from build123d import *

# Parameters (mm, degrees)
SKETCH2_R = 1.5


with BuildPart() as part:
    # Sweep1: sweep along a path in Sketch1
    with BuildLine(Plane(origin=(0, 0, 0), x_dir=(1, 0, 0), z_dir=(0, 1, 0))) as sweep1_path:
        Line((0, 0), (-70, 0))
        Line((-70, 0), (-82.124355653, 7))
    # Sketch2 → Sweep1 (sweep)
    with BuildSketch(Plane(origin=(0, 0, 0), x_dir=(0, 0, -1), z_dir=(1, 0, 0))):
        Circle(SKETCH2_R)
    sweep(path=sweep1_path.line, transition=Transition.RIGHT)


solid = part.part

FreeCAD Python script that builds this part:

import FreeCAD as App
import Part
import Sketcher
from FreeCAD import Vector
Q = App.Units.Quantity

doc = App.newDocument("Part")
body = doc.addObject("PartDesign::Body", "Body")

# Sketch on YZ plane
sketch1 = doc.addObject("Sketcher::SketchObject", "Sketch")
body.addObject(sketch1)
sketch1.AttachmentSupport = (doc.YZ_Plane, [""])
sketch1.MapMode = "FlatFace"
sketch1.addGeometry(Part.Circle(Vector(0, 0, 0), Vector(0, 0, 1), 1.5), False)
sketch1.addConstraint([
    Sketcher.Constraint("Coincident", 0, 3, -1, 1),
    Sketcher.Constraint("Diameter", 0, 3.0),
])

# Sketch on XZ plane
sketch2 = doc.addObject("Sketcher::SketchObject", "Sketch001")
body.addObject(sketch2)
sketch2.AttachmentSupport = (doc.XZ_Plane, [""])
sketch2.MapMode = "FlatFace"
sketch2.addGeometry([
    Part.LineSegment(Vector(0, 0, 0), Vector(-70, 0, 0)),
    Part.LineSegment(Vector(-70, 0, 0), Vector(-82, -7, 0)),
], False)
sketch2.addConstraint([
    Sketcher.Constraint("Coincident", 0, 2, 1, 1),
    Sketcher.Constraint("Horizontal", 0),
    Sketcher.Constraint("Coincident", 0, 1, -1, 1),
    Sketcher.Constraint("DistanceX", 0, 2, 0, 1, 70.0),
    Sketcher.Constraint("Angle", 1, Q("-150 deg")),
    Sketcher.Constraint("Distance", 1, 14.0),
])
doc.recompute()

additivepipe = doc.addObject("PartDesign::AdditivePipe", "AdditivePipe")
body.addObject(additivepipe)
additivepipe.Profile = sketch1
additivepipe.Spine = (sketch2, ["Edge1", "Edge2"])
additivepipe.Transition = "Right corner"

doc.recompute()
